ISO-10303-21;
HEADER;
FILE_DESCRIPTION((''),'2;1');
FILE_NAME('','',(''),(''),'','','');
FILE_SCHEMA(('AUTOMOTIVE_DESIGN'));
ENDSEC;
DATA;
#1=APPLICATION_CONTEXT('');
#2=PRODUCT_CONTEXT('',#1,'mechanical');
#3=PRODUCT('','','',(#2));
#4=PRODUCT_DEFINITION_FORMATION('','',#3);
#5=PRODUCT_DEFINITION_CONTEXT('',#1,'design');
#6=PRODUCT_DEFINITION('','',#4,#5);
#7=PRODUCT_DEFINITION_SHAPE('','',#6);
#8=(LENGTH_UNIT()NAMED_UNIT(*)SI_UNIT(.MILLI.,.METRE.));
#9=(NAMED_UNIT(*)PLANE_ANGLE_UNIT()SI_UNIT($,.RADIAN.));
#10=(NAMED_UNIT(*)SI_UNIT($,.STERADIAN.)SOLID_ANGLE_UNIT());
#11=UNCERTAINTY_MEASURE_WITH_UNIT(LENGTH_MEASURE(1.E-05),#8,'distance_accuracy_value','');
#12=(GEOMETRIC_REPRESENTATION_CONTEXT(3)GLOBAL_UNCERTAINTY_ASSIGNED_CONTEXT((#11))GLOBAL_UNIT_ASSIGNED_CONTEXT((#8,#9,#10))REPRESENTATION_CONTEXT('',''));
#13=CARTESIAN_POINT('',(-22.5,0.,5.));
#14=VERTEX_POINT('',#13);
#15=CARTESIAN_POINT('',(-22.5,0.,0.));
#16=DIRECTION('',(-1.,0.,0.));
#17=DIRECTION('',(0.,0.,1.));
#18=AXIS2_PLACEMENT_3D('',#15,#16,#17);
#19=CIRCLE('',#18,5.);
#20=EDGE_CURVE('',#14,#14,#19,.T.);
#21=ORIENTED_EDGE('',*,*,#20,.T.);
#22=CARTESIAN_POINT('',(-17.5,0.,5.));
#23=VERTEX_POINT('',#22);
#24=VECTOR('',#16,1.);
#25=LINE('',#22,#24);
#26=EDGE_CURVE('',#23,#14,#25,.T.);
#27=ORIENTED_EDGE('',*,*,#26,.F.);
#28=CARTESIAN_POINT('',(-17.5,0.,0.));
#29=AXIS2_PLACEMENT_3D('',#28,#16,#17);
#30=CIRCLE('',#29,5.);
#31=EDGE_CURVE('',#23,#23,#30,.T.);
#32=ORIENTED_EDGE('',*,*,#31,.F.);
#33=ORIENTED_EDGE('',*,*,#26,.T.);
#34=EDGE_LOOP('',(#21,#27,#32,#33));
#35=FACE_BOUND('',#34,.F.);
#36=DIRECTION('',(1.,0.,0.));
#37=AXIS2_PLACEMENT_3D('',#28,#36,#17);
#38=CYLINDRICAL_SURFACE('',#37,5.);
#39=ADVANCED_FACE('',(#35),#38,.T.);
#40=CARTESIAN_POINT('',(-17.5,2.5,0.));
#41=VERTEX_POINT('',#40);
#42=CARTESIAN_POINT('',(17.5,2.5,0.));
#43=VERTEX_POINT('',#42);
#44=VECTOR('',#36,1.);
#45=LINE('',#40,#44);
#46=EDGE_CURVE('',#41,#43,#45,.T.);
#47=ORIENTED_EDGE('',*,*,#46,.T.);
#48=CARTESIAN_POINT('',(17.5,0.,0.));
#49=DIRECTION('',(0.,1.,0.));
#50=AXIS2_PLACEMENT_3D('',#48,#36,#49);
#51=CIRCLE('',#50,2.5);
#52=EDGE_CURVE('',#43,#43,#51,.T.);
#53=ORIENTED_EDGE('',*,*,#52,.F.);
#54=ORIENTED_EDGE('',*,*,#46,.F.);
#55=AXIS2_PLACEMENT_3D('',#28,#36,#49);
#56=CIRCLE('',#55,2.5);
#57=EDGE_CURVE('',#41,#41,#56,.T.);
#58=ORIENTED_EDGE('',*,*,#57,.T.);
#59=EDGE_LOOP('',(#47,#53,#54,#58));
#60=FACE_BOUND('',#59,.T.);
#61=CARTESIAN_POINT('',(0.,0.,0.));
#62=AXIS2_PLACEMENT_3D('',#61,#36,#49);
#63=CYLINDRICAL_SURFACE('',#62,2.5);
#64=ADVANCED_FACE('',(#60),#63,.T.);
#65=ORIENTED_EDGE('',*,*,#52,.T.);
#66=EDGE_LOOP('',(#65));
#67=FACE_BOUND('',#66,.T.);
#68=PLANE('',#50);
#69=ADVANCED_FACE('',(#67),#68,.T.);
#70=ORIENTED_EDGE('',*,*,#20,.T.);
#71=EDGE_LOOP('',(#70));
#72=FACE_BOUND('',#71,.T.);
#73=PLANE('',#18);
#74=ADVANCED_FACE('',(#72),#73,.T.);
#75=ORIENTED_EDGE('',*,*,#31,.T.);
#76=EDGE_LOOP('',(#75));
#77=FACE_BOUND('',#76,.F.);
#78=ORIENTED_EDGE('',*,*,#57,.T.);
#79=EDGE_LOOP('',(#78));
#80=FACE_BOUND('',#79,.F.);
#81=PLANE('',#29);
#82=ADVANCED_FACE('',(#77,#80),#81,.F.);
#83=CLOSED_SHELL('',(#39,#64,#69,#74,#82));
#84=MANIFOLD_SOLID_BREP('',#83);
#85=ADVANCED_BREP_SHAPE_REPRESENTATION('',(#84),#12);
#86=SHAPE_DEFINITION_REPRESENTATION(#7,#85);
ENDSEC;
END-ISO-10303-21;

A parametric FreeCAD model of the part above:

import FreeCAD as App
import Part
import Sketcher

V = App.Vector

doc = App.newDocument("Part")
params = doc.addObject("Spreadsheet::Sheet", "Params")
for row, (alias, value) in enumerate([
    ("sketch1_diameter", "5 mm"),
    ("pad1_length", "35 mm"),
    ("sketch2_diameter", "10 mm"),
    ("pad2_length", "5 mm"),
], start=1):
    params.set(f"A{row}", alias)
    params.set(f"B{row}", "=" + value)
    params.setAlias(f"B{row}", alias)

body = doc.addObject("PartDesign::Body", "Body")

# Sketch on YZ plane
sketch1 = doc.addObject("Sketcher::SketchObject", "Sketch")
body.addObject(sketch1)
sketch1.AttachmentSupport = (doc.YZ_Plane, [""])
sketch1.MapMode = "FlatFace"
sketch1.addGeometry(Part.Circle(V(0, 0, 0), V(0, 0, 1), 2.5), False)
sketch1.addConstraint(Sketcher.Constraint("Coincident", 0, 3, -1, 1))
sketch1.addConstraint(Sketcher.Constraint("Diameter", 0, 5.0))
sketch1.setExpression("Constraints[1]", "Params.sketch1_diameter")
pad1 = doc.addObject("PartDesign::Pad", "Pad")
body.addObject(pad1)
pad1.Profile = sketch1
pad1.setExpression("Length", "Params.pad1_length")
pad1.Midplane = True

# Sketch on YZ plane
sketch2 = doc.addObject("Sketcher::SketchObject", "Sketch001")
body.addObject(sketch2)
sketch2.AttachmentSupport = (doc.YZ_Plane, [""])
sketch2.MapMode = "FlatFace"
sketch2.AttachmentOffset = App.Placement(V(0, 0, -17.5), App.Rotation())
sketch2.addGeometry(Part.Circle(V(0, 0, 0), V(0, 0, 1), 5), False)
sketch2.addConstraint(Sketcher.Constraint("Coincident", 0, 3, -1, 1))
sketch2.addConstraint(Sketcher.Constraint("Diameter", 0, 10.0))
sketch2.setExpression("Constraints[1]", "Params.sketch2_diameter")
pad2 = doc.addObject("PartDesign::Pad", "Pad001")
body.addObject(pad2)
pad2.Profile = sketch2
pad2.setExpression("Length", "Params.pad2_length")
pad2.Reversed = True

doc.recompute()
